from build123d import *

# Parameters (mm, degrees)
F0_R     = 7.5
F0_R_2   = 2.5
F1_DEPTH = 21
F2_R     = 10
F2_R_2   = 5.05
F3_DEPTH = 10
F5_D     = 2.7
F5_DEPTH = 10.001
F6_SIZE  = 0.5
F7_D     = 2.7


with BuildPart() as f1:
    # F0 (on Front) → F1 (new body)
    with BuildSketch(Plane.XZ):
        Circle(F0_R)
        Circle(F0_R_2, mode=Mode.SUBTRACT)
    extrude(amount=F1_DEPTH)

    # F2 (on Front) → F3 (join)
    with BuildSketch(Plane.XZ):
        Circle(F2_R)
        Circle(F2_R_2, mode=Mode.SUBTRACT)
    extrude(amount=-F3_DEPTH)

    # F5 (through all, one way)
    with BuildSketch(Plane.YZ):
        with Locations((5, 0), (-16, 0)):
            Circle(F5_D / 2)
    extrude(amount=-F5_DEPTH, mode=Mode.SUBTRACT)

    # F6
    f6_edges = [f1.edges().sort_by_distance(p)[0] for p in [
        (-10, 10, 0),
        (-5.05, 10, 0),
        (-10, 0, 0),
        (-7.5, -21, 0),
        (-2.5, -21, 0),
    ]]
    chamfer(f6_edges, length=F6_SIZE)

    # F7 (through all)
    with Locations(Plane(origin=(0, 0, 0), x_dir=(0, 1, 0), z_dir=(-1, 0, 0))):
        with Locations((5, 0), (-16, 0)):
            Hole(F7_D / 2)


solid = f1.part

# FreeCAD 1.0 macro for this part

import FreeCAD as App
import Part
import Sketcher
Q = App.Units.Quantity


def edges_at(feature, points):
    """Names of the edges that pass closest to the given points."""
    edges = feature.Shape.Edges
    near = lambda p: min(range(len(edges)), key=lambda i: edges[i].distToShape(Part.Vertex(*p))[0])
    return sorted({f"Edge{near(p) + 1}" for p in points})

doc = App.newDocument("Part")
body = doc.addObject("PartDesign::Body", "Body")

# Sketch on XZ plane
sketch1 = body.newObject("Sketcher::SketchObject", "Sketch")
sketch1.AttachmentSupport = (doc.getObject("XZ_Plane"), [""])
sketch1.MapMode = "FlatFace"
sketch1.addGeometry(Part.Circle(App.Vector(0, 0, 0), App.Vector(0, 0, 1), 7.5), False)
sketch1.addGeometry(Part.Circle(App.Vector(0, 0, 0), App.Vector(0, 0, 1), 2.5), False)
sketch1.addConstraint(Sketcher.Constraint("Coincident", 0, 3, -1, 1))
sketch1.addConstraint(Sketcher.Constraint("Coincident", 1, 3, -1, 1))
sketch1.addConstraint(Sketcher.Constraint("Diameter", 0, Q("15 mm")))
sketch1.addConstraint(Sketcher.Constraint("Diameter", 1, Q("5 mm")))
pad1 = body.newObject("PartDesign::Pad", "Pad")
pad1.Profile = sketch1
pad1.Length = 21

# Sketch on XZ plane
sketch2 = body.newObject("Sketcher::SketchObject", "Sketch001")
sketch2.AttachmentSupport = (doc.getObject("XZ_Plane"), [""])
sketch2.MapMode = "FlatFace"
sketch2.addGeometry(Part.Circle(App.Vector(0, 0, 0), App.Vector(0, 0, 1), 10), False)
sketch2.addGeometry(Part.Circle(App.Vector(0, 0, 0), App.Vector(0, 0, 1), 5.05), False)
sketch2.addConstraint(Sketcher.Constraint("Coincident", 0, 3, -1, 1))
sketch2.addConstraint(Sketcher.Constraint("Coincident", 1, 3, -1, 1))
sketch2.addConstraint(Sketcher.Constraint("Diameter", 0, Q("20 mm")))
sketch2.addConstraint(Sketcher.Constraint("Diameter", 1, Q("10.1 mm")))
pad2 = body.newObject("PartDesign::Pad", "Pad001")
pad2.Profile = sketch2
pad2.Length = 10
pad2.Reversed = True

# Sketch on YZ plane
sketch3 = body.newObject("Sketcher::SketchObject", "Sketch002")
sketch3.AttachmentSupport = (doc.getObject("YZ_Plane"), [""])
sketch3.MapMode = "FlatFace"
sketch3.addGeometry(Part.Circle(App.Vector(-16, 0, 0), App.Vector(0, 0, 1), 1.35), False)
sketch3.addGeometry(Part.Circle(App.Vector(5, 0, 0), App.Vector(0, 0, 1), 1.35), False)
sketch3.addConstraint(Sketcher.Constraint("Equal", 0, 1))
sketch3.addConstraint(Sketcher.Constraint("PointOnObject", 0, 3, -1))
sketch3.addConstraint(Sketcher.Constraint("PointOnObject", 1, 3, -1))
sketch3.addConstraint(Sketcher.Constraint("Diameter", 0, Q("2.7 mm")))
sketch3.addConstraint(Sketcher.Constraint("DistanceX", 0, 3, -1, 1, Q("16 mm")))
sketch3.addConstraint(Sketcher.Constraint("DistanceX", -1, 1, 1, 3, Q("5 mm")))
pocket1 = body.newObject("PartDesign::Pocket", "Pocket")
pocket1.Profile = sketch3
pocket1.Type = "ThroughAll"
doc.recompute()

chamfer = body.newObject("PartDesign::Chamfer", "Chamfer")
chamfer.Base = (pocket1, edges_at(pocket1, [
    (-10, 10, 0),
    (-5.05, 10, 0),
    (-10, 0, 0),
    (-7.5, -21, 0),
    (-2.5, -21, 0),
]))
chamfer.Size = 0.5

# Sketch on YZ plane
sketch4 = body.newObject("Sketcher::SketchObject", "Sketch003")
sketch4.AttachmentSupport = (doc.getObject("YZ_Plane"), [""])
sketch4.MapMode = "FlatFace"
sketch4.addGeometry(Part.Circle(App.Vector(5, 0, 0), App.Vector(0, 0, 1), 1.35), False)
sketch4.addGeometry(Part.Circle(App.Vector(-16, 0, 0), App.Vector(0, 0, 1), 1.35), False)
sketch4.addConstraint(Sketcher.Constraint("Equal", 0, 1))
sketch4.addConstraint(Sketcher.Constraint("PointOnObject", 0, 3, -1))
sketch4.addConstraint(Sketcher.Constraint("PointOnObject", 1, 3, -1))
sketch4.addConstraint(Sketcher.Constraint("Diameter", 0, Q("2.7 mm")))
sketch4.addConstraint(Sketcher.Constraint("DistanceX", -1, 1, 0, 3, Q("5 mm")))
sketch4.addConstraint(Sketcher.Constraint("DistanceX", 1, 3, -1, 1, Q("16 mm")))
doc.recompute()
hole = body.newObject("PartDesign::Hole", "Hole")
hole.Profile = sketch4
hole.ThreadType = "None"
hole.Diameter = 2.7
hole.DepthType = "ThroughAll"
hole.Reversed = True

doc.recompute()
